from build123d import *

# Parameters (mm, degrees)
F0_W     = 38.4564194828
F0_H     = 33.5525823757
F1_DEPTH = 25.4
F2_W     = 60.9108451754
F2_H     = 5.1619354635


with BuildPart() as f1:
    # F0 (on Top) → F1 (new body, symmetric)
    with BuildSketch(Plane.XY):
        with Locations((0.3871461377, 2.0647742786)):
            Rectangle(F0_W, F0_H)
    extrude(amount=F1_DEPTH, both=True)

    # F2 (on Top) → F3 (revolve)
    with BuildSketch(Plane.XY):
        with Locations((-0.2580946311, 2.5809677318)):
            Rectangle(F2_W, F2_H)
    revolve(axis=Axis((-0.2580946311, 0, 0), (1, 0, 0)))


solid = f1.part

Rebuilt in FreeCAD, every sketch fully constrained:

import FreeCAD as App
import Part
import Sketcher
Q = App.Units.Quantity


def add_polygon(sketch, points):
    """Adds a closed chain of lines whose ends are joined by coincident constraints."""
    first, n = sketch.GeometryCount, len(points)
    for a, b in zip(points, points[1:] + points[:1]):
        sketch.addGeometry(Part.LineSegment(App.Vector(*a, 0), App.Vector(*b, 0)), False)
    for i in range(n):
        sketch.addConstraint(Sketcher.Constraint("Coincident", first + i, 2, first + (i + 1) % n, 1))

doc = App.newDocument("Part")
body = doc.addObject("PartDesign::Body", "Body")

sketch1 = body.newObject("Sketcher::SketchObject", "Sketch")
sketch1.AttachmentSupport = (doc.getObject("XY_Plane"), [""])
sketch1.MapMode = "FlatFace"
add_polygon(sketch1, [(-19, 19), (-19, -15), (20, -15), (20, 19)])
sketch1.addConstraint(Sketcher.Constraint("Vertical", 0))
sketch1.addConstraint(Sketcher.Constraint("Horizontal", 1))
sketch1.addConstraint(Sketcher.Constraint("Vertical", 2))
sketch1.addConstraint(Sketcher.Constraint("Horizontal", 3))
sketch1.addConstraint(Sketcher.Constraint("DistanceX", 1, 1, 1, 2, Q("38.456419 mm")))
sketch1.addConstraint(Sketcher.Constraint("DistanceY", 0, 2, 0, 1, Q("33.552582 mm")))
sketch1.addConstraint(Sketcher.Constraint("DistanceX", 0, 2, -1, 1, Q("18.841064 mm")))
sketch1.addConstraint(Sketcher.Constraint("DistanceY", 0, 2, -1, 1, Q("14.711517 mm")))
pad1 = body.newObject("PartDesign::Pad", "Pad")
pad1.Profile = sketch1
pad1.Length = Q("2 in")
pad1.Midplane = True

sketch2 = body.newObject("Sketcher::SketchObject", "Sketch001")
sketch2.AttachmentSupport = (doc.getObject("XY_Plane"), [""])
sketch2.MapMode = "FlatFace"
add_polygon(sketch2, [(-31, 5), (-31, 0), (30, 0), (30, 5)])
sketch2.addConstraint(Sketcher.Constraint("Vertical", 0))
sketch2.addConstraint(Sketcher.Constraint("Horizontal", 1))
sketch2.addConstraint(Sketcher.Constraint("Vertical", 2))
sketch2.addConstraint(Sketcher.Constraint("Horizontal", 3))
sketch2.addConstraint(Sketcher.Constraint("PointOnObject", 0, 2, -1))
sketch2.addConstraint(Sketcher.Constraint("DistanceX", 1, 1, 1, 2, Q("60.910845 mm")))
sketch2.addConstraint(Sketcher.Constraint("DistanceY", 0, 2, 0, 1, Q("5.161935 mm")))
sketch2.addConstraint(Sketcher.Constraint("DistanceX", 0, 2, -1, 1, Q("30.713517 mm")))
revolution = body.newObject("PartDesign::Revolution", "Revolution")
revolution.Profile = sketch2
revolution.ReferenceAxis = (sketch2, ["H_Axis"])
revolution.Angle = 360

doc.recompute()
